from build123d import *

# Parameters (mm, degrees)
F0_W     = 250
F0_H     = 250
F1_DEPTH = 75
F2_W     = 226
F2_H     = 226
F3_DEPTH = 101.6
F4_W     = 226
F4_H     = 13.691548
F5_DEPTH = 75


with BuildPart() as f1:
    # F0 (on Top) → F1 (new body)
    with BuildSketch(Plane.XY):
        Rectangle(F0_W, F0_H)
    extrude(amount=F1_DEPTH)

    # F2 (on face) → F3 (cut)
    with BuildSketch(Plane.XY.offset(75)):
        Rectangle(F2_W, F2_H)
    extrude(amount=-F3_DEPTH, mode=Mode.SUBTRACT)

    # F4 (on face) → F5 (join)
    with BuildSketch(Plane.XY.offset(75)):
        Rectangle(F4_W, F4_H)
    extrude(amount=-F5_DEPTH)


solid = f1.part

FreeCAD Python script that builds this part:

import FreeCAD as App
import Part
import Sketcher

V = App.Vector
Q = App.Units.Quantity


def add_polygon(sketch, points):
    """Adds a closed chain of lines whose ends are joined by coincident constraints."""
    first, n = sketch.GeometryCount, len(points)
    for a, b in zip(points, points[1:] + points[:1]):
        sketch.addGeometry(Part.LineSegment(App.Vector(*a, 0), App.Vector(*b, 0)), False)
    for i in range(n):
        sketch.addConstraint(Sketcher.Constraint("Coincident", first + i, 2, first + (i + 1) % n, 1))

doc = App.newDocument("Part")
params = doc.addObject("Spreadsheet::Sheet", "Params")
for row, (alias, value) in enumerate([
    ("sketch1_width", "250 mm"),
    ("pad1_length", "75 mm"),
    ("sketch2_width", "226 mm"),
    ("pocket1_length", "101.6 mm"),
    ("sketch3_width", "226 mm"),
    ("pad2_length", "75 mm"),
], start=1):
    params.set(f"A{row}", alias)
    params.set(f"B{row}", "=" + value)
    params.setAlias(f"B{row}", alias)

body = doc.addObject("PartDesign::Body", "Body")

# Sketch on XY plane
sketch1 = doc.addObject("Sketcher::SketchObject", "Sketch")
body.addObject(sketch1)
sketch1.AttachmentSupport = (doc.XY_Plane, [""])
sketch1.MapMode = "FlatFace"
add_polygon(sketch1, [(-125, 125), (-125, -125), (125, -125), (125, 125)])  # lines 0-3
sketch1.addConstraint([
    Sketcher.Constraint("Vertical", 0),
    Sketcher.Constraint("Horizontal", 1),
    Sketcher.Constraint("Vertical", 2),
    Sketcher.Constraint("Horizontal", 3),
    Sketcher.Constraint("Symmetric", 0, 2, 2, 2, -1, 1),
    Sketcher.Constraint("Equal", 3, 0),
    Sketcher.Constraint("DistanceX", 1, 1, 1, 2, Q("250 mm")),
])
sketch1.setExpression("Constraints[10]", "Params.sketch1_width")
pad1 = doc.addObject("PartDesign::Pad", "Pad")
body.addObject(pad1)
pad1.Profile = sketch1
pad1.setExpression("Length", "Params.pad1_length")

# Sketch on XY plane
sketch2 = doc.addObject("Sketcher::SketchObject", "Sketch001")
body.addObject(sketch2)
sketch2.AttachmentSupport = (doc.XY_Plane, [""])
sketch2.MapMode = "FlatFace"
sketch2.AttachmentOffset = App.Placement(V(0, 0, 75), App.Rotation())
add_polygon(sketch2, [(-113, 113), (-113, -113), (113, -113), (113, 113)])  # lines 0-3
sketch2.addConstraint([
    Sketcher.Constraint("Vertical", 0),
    Sketcher.Constraint("Horizontal", 1),
    Sketcher.Constraint("Vertical", 2),
    Sketcher.Constraint("Horizontal", 3),
    Sketcher.Constraint("Symmetric", 0, 2, 2, 2, -1, 1),
    Sketcher.Constraint("Equal", 3, 0),
    Sketcher.Constraint("DistanceX", 1, 1, 1, 2, Q("226 mm")),
])
sketch2.setExpression("Constraints[10]", "Params.sketch2_width")
pocket1 = doc.addObject("PartDesign::Pocket", "Pocket")
body.addObject(pocket1)
pocket1.Profile = sketch2
pocket1.setExpression("Length", "Params.pocket1_length")

# Sketch on XY plane
sketch3 = doc.addObject("Sketcher::SketchObject", "Sketch002")
body.addObject(sketch3)
sketch3.AttachmentSupport = (doc.XY_Plane, [""])
sketch3.MapMode = "FlatFace"
sketch3.AttachmentOffset = App.Placement(V(0, 0, 75), App.Rotation())
add_polygon(sketch3, [(-113, 7), (-113, -7), (113, -7), (113, 7)])  # lines 0-3
sketch3.addConstraint([
    Sketcher.Constraint("Vertical", 0),
    Sketcher.Constraint("Horizontal", 1),
    Sketcher.Constraint("Vertical", 2),
    Sketcher.Constraint("Horizontal", 3),
    Sketcher.Constraint("Symmetric", 0, 2, 2, 2, -1, 1),
    Sketcher.Constraint("DistanceX", 1, 1, 1, 2, Q("226 mm")),
    Sketcher.Constraint("DistanceY", 0, 2, 0, 1, Q("13.691548 mm")),
])
sketch3.setExpression("Constraints[9]", "Params.sketch3_width")
pad2 = doc.addObject("PartDesign::Pad", "Pad001")
body.addObject(pad2)
pad2.Profile = sketch3
pad2.setExpression("Length", "Params.pad2_length")
pad2.Reversed = True

doc.recompute()
